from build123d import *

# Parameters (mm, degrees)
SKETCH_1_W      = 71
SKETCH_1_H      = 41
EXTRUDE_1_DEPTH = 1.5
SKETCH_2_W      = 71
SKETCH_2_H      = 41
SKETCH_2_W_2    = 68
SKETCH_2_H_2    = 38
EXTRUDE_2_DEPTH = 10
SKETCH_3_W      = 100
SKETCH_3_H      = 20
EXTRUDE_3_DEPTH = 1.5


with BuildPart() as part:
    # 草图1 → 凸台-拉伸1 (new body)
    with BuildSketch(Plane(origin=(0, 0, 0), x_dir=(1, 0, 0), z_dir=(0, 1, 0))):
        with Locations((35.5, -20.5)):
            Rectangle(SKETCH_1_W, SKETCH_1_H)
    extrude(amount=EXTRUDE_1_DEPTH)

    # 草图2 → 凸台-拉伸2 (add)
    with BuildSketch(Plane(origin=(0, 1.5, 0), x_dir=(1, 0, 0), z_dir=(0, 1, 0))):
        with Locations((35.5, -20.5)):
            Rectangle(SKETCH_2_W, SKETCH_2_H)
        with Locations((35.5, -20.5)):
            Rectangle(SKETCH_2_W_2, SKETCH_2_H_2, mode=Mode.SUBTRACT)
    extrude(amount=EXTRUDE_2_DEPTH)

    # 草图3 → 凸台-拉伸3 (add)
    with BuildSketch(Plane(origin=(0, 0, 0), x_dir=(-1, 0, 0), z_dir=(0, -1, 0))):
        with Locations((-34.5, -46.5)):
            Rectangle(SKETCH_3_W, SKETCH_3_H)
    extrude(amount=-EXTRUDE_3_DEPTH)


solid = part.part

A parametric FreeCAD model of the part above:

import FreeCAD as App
import Part
import Sketcher
Q = App.Units.Quantity


def add_polygon(sketch, points):
    """Adds a closed chain of lines whose ends are joined by coincident constraints."""
    first, n = sketch.GeometryCount, len(points)
    for a, b in zip(points, points[1:] + points[:1]):
        sketch.addGeometry(Part.LineSegment(App.Vector(*a, 0), App.Vector(*b, 0)), False)
    for i in range(n):
        sketch.addConstraint(Sketcher.Constraint("Coincident", first + i, 2, first + (i + 1) % n, 1))

doc = App.newDocument("Part")
body = doc.addObject("PartDesign::Body", "Body")

# Sketch on XZ plane
sketch1 = body.newObject("Sketcher::SketchObject", "Sketch")
sketch1.AttachmentSupport = (doc.getObject("XZ_Plane"), [""])
sketch1.MapMode = "FlatFace"
add_polygon(sketch1, [(0, 0), (0, 41), (71, 41), (71, 0)])  # lines 0-3
sketch1.addConstraint(Sketcher.Constraint("Vertical", 0))
sketch1.addConstraint(Sketcher.Constraint("Horizontal", 1))
sketch1.addConstraint(Sketcher.Constraint("Vertical", 2))
sketch1.addConstraint(Sketcher.Constraint("Horizontal", 3))
sketch1.addConstraint(Sketcher.Constraint("Coincident", 3, 2, -1, 1))
sketch1.addConstraint(Sketcher.Constraint("DistanceX", 1, 1, 1, 2, Q("71 mm")))
sketch1.addConstraint(Sketcher.Constraint("DistanceY", 0, 1, 0, 2, Q("41 mm")))
pad1 = body.newObject("PartDesign::Pad", "Pad")
pad1.Profile = sketch1
pad1.Length = 1.5
pad1.Reversed = True

# Sketch on XZ plane
sketch2 = body.newObject("Sketcher::SketchObject", "Sketch001")
sketch2.AttachmentSupport = (doc.getObject("XZ_Plane"), [""])
sketch2.MapMode = "FlatFace"
sketch2.AttachmentOffset = App.Placement(App.Vector(0, 0, -1.5), App.Rotation())
add_polygon(sketch2, [(0, 0), (0, 41), (71, 41), (71, 0)])  # lines 0-3
add_polygon(sketch2, [(70, 40), (2, 40), (2, 2), (70, 2)])  # lines 4-7
sketch2.addConstraint(Sketcher.Constraint("Vertical", 0))
sketch2.addConstraint(Sketcher.Constraint("Horizontal", 1))
sketch2.addConstraint(Sketcher.Constraint("Vertical", 2))
sketch2.addConstraint(Sketcher.Constraint("Horizontal", 3))
sketch2.addConstraint(Sketcher.Constraint("Horizontal", 4))
sketch2.addConstraint(Sketcher.Constraint("Vertical", 5))
sketch2.addConstraint(Sketcher.Constraint("Horizontal", 6))
sketch2.addConstraint(Sketcher.Constraint("Vertical", 7))
sketch2.addConstraint(Sketcher.Constraint("Coincident", 3, 2, -1, 1))
sketch2.addConstraint(Sketcher.Constraint("DistanceX", 1, 1, 1, 2, Q("71 mm")))
sketch2.addConstraint(Sketcher.Constraint("DistanceX", 4, 2, 4, 1, Q("68 mm")))
sketch2.addConstraint(Sketcher.Constraint("DistanceY", 0, 1, 0, 2, Q("41 mm")))
sketch2.addConstraint(Sketcher.Constraint("DistanceY", 5, 2, 5, 1, Q("38 mm")))
sketch2.addConstraint(Sketcher.Constraint("DistanceX", -1, 1, 4, 2, Q("1.5 mm")))
sketch2.addConstraint(Sketcher.Constraint("DistanceY", -1, 1, 4, 2, Q("39.5 mm")))
pad2 = body.newObject("PartDesign::Pad", "Pad001")
pad2.Profile = sketch2
pad2.Length = 10
pad2.Reversed = True

# Sketch on XZ plane
sketch3 = body.newObject("Sketcher::SketchObject", "Sketch002")
sketch3.AttachmentSupport = (doc.getObject("XZ_Plane"), [""])
sketch3.MapMode = "FlatFace"
add_polygon(sketch3, [(84, 36), (84, 56), (-16, 56), (-16, 36)])  # lines 0-3
sketch3.addConstraint(Sketcher.Constraint("Vertical", 0))
sketch3.addConstraint(Sketcher.Constraint("Horizontal", 1))
sketch3.addConstraint(Sketcher.Constraint("Vertical", 2))
sketch3.addConstraint(Sketcher.Constraint("Horizontal", 3))
sketch3.addConstraint(Sketcher.Constraint("DistanceX", 1, 2, 1, 1, Q("100 mm")))
sketch3.addConstraint(Sketcher.Constraint("DistanceY", 0, 1, 0, 2, Q("20 mm")))
sketch3.addConstraint(Sketcher.Constraint("DistanceX", -1, 1, 0, 2, Q("84.5 mm")))
sketch3.addConstraint(Sketcher.Constraint("DistanceY", -1, 1, 0, 2, Q("56.5 mm")))
pad3 = body.newObject("PartDesign::Pad", "Pad002")
pad3.Profile = sketch3
pad3.Length = 1.5
pad3.Reversed = True

doc.recompute()
